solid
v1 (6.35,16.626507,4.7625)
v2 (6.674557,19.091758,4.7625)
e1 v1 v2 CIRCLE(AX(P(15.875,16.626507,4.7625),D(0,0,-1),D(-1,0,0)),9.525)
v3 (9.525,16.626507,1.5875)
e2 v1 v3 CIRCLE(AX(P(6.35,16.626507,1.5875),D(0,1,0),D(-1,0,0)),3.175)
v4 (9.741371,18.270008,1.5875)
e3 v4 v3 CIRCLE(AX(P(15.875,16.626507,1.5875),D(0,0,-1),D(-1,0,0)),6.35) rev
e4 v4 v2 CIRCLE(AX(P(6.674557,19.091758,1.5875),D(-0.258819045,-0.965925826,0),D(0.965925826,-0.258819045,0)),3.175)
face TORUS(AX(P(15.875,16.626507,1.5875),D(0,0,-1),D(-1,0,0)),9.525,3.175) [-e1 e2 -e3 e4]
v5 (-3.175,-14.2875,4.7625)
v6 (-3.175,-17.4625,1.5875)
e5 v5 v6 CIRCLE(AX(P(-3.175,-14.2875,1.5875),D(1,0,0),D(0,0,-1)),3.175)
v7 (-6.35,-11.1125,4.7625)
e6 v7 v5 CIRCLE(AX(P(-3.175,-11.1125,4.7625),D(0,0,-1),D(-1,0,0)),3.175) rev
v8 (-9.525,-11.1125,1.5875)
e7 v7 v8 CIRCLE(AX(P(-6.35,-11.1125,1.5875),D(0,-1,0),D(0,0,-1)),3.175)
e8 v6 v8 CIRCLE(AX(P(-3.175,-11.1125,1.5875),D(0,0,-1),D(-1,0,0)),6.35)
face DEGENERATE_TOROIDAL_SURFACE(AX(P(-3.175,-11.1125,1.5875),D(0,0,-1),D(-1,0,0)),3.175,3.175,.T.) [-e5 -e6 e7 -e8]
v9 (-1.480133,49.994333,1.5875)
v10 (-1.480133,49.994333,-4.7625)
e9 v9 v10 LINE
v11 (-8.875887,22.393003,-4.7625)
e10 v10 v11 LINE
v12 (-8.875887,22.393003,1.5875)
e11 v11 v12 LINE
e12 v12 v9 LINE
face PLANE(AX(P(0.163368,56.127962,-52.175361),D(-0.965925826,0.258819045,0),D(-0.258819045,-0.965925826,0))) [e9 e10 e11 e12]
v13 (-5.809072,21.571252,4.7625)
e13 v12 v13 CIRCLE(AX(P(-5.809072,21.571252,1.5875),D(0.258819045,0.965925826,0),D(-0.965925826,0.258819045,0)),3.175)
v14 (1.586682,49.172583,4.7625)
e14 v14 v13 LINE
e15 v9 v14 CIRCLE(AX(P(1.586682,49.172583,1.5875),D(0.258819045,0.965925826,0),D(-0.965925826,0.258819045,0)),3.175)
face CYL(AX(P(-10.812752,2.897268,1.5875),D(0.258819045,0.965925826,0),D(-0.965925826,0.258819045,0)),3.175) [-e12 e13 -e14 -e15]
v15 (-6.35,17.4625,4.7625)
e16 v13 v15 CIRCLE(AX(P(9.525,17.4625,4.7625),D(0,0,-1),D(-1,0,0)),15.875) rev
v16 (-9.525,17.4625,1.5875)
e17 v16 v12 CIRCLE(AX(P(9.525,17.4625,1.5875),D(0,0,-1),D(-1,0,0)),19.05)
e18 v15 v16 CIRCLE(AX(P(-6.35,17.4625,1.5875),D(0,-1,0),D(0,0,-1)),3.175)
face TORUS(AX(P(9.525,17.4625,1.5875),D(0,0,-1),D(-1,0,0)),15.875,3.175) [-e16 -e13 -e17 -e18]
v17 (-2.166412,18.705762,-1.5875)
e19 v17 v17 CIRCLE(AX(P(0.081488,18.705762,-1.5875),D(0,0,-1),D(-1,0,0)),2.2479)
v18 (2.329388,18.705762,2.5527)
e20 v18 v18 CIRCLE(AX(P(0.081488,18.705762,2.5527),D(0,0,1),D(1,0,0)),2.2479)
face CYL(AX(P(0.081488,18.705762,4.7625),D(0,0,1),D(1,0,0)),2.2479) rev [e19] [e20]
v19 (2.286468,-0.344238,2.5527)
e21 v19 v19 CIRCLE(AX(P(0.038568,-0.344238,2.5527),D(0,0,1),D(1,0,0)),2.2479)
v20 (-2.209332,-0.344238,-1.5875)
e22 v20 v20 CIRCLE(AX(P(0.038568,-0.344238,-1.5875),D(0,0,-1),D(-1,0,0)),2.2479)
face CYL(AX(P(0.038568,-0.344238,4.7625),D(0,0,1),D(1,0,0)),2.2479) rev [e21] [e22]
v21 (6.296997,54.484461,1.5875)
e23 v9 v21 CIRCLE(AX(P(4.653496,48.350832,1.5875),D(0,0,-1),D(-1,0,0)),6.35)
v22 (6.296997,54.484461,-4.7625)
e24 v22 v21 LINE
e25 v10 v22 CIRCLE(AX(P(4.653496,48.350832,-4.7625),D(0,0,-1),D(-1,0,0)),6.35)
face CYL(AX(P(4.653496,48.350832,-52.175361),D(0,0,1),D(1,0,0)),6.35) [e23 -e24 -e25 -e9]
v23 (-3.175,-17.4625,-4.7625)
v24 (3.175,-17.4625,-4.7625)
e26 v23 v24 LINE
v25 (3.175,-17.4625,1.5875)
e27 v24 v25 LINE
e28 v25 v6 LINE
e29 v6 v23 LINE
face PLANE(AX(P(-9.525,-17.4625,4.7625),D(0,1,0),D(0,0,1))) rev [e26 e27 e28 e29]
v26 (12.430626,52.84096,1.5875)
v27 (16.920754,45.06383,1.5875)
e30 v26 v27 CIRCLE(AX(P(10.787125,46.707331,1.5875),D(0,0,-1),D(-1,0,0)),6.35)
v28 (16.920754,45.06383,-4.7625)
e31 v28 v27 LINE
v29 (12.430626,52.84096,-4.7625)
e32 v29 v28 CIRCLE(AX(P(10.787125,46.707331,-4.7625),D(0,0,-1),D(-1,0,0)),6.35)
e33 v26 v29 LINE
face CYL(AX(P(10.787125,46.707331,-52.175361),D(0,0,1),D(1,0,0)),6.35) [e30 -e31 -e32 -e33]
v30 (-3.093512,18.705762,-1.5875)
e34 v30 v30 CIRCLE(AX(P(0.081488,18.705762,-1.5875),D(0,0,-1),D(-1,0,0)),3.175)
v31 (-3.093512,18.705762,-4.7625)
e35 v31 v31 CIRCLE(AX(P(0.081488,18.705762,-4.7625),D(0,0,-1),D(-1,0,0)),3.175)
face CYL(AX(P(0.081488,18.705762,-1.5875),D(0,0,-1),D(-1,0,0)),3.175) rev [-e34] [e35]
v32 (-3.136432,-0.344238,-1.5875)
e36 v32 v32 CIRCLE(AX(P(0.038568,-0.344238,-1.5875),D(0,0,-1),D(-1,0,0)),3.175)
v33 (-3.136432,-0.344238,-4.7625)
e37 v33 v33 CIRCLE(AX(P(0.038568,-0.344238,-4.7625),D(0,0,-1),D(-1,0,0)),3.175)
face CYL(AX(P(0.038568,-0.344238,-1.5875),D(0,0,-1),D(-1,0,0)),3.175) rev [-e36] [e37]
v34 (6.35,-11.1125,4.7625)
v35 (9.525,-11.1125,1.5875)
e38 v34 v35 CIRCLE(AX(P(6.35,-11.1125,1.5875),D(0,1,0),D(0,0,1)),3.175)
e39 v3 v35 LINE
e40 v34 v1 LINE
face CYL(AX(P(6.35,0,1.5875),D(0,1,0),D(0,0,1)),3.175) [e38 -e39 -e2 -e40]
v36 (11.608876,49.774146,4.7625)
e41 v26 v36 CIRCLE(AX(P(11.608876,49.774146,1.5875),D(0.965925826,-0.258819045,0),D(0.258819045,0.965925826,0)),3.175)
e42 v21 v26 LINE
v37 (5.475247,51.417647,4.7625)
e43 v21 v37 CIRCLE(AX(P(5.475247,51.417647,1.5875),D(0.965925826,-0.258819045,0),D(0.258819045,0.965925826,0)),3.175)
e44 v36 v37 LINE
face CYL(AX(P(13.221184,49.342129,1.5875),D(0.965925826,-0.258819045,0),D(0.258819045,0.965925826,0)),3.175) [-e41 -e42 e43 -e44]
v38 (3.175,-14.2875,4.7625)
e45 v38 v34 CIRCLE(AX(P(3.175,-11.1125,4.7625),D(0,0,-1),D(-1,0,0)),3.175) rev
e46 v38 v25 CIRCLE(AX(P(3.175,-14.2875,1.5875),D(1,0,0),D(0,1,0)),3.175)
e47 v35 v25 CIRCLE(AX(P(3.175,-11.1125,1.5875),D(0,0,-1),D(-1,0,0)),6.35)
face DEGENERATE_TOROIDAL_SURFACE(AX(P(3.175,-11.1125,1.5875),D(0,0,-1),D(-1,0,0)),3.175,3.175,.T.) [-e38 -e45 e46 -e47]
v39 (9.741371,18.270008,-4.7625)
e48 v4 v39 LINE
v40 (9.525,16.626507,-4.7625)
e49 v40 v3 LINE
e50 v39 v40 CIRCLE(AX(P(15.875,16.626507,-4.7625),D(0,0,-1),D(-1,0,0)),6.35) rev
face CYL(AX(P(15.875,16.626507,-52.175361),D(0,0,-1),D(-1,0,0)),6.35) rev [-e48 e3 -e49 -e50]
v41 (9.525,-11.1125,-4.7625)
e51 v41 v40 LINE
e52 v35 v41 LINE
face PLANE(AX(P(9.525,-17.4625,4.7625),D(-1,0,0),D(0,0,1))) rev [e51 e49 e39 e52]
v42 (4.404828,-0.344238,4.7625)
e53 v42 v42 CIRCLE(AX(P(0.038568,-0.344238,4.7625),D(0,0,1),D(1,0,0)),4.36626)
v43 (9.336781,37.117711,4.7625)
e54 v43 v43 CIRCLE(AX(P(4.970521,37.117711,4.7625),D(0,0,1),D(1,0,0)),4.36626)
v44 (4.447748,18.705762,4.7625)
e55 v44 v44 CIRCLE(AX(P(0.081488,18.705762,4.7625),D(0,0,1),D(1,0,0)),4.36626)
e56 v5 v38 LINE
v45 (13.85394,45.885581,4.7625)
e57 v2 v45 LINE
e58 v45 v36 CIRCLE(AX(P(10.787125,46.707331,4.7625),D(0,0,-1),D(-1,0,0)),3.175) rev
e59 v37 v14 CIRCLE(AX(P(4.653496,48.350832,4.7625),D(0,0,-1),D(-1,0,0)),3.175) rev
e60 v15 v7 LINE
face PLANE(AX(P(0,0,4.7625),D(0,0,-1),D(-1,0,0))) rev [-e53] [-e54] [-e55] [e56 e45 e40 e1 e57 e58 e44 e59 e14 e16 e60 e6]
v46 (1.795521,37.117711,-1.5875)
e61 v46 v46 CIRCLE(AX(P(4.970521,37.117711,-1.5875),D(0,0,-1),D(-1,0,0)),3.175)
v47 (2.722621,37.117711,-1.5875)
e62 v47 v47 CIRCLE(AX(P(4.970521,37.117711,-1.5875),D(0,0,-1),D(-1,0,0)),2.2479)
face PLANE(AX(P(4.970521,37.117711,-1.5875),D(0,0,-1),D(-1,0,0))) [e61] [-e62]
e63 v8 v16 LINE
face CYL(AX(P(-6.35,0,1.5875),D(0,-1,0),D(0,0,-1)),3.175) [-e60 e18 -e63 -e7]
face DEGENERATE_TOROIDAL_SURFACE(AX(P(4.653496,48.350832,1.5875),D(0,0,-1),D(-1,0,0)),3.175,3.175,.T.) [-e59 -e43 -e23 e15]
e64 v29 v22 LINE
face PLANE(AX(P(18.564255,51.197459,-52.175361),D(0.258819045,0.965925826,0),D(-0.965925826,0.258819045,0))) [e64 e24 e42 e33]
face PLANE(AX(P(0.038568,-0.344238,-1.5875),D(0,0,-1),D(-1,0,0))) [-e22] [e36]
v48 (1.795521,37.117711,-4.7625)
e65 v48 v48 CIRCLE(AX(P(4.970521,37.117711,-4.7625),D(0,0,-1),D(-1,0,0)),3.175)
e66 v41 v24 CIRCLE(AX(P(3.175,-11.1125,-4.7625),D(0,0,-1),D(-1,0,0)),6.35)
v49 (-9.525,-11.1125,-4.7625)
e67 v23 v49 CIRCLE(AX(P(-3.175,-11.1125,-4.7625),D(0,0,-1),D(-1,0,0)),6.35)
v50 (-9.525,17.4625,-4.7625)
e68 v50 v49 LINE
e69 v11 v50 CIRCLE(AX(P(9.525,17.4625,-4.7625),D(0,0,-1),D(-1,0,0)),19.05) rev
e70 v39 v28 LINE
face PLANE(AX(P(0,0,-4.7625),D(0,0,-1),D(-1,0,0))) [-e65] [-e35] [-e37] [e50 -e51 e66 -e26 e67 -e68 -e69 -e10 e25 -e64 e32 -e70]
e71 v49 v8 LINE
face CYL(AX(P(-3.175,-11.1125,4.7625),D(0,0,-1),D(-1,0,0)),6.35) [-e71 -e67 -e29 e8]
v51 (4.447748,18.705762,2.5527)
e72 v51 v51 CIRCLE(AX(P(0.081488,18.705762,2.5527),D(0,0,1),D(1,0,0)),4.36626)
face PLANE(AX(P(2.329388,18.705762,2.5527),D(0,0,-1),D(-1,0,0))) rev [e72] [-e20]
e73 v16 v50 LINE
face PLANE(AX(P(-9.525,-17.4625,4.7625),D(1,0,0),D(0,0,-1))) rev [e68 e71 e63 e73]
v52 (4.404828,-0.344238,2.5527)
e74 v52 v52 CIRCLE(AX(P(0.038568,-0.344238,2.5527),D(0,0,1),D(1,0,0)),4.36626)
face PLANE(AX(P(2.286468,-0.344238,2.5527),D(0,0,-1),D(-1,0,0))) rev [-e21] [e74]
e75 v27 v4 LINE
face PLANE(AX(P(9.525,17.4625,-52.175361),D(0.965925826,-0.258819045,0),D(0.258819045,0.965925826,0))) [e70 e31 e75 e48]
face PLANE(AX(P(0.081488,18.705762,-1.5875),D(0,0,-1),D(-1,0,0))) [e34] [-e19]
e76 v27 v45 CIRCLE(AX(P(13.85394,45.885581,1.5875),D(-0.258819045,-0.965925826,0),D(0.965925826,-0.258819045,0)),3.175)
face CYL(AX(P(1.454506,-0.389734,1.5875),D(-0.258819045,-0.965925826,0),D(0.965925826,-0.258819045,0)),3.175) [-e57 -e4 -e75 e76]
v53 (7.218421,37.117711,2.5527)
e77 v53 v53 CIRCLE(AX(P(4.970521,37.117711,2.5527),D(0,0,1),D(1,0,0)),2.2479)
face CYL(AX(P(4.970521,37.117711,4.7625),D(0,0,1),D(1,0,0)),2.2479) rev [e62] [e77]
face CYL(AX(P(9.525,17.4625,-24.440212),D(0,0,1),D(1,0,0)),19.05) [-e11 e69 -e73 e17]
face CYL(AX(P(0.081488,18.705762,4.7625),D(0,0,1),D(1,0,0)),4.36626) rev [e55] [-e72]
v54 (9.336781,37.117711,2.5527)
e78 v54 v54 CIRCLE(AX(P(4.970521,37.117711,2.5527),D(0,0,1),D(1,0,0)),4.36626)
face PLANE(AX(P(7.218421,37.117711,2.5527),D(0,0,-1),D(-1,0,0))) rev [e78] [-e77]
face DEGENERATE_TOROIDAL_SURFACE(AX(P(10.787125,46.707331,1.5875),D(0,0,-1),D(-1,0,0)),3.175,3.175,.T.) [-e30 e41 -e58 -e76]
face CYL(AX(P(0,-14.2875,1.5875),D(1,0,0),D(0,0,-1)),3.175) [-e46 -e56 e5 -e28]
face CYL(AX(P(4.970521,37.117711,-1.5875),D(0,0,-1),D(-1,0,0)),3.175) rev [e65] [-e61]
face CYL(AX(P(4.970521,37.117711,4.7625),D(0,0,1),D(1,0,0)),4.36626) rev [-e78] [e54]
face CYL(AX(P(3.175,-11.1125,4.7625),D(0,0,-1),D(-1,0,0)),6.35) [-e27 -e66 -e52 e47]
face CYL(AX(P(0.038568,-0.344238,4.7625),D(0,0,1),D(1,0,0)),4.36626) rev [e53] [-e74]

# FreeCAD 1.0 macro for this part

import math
import FreeCAD as App
import Part
import Sketcher

V = App.Vector
Q = App.Units.Quantity


def edges_at(feature, points):
    """Names of the edges that pass closest to the given points."""
    edges = feature.Shape.Edges
    near = lambda p: min(range(len(edges)), key=lambda i: edges[i].distToShape(Part.Vertex(*p))[0])
    return sorted({f"Edge{near(p) + 1}" for p in points})

doc = App.newDocument("Part")
body = doc.addObject("PartDesign::Body", "Body")

sketch1 = doc.addObject("Sketcher::SketchObject", "Sketch")
body.addObject(sketch1)
sketch1.AttachmentSupport = (doc.XY_Plane, [""])
sketch1.MapMode = "FlatFace"
sketch1.addGeometry(Part.LineSegment(V(-10, 17, 0), V(-10, -17, 0)), False)
sketch1.addGeometry(Part.LineSegment(V(-10, -17, 0), V(10, -17, 0)), False)
sketch1.addGeometry(Part.LineSegment(V(10, -17, 0), V(10, 17, 0)), False)
sketch1.addGeometry(Part.LineSegment(V(10, 17, 0), V(-10, 17, 0)), False)
sketch1.addConstraint(Sketcher.Constraint("Coincident", 0, 2, 1, 1))
sketch1.addConstraint(Sketcher.Constraint("Coincident", 1, 2, 2, 1))
sketch1.addConstraint(Sketcher.Constraint("Coincident", 2, 2, 3, 1))
sketch1.addConstraint(Sketcher.Constraint("Coincident", 3, 2, 0, 1))
sketch1.addConstraint(Sketcher.Constraint("Vertical", 0))
sketch1.addConstraint(Sketcher.Constraint("Horizontal", 1))
sketch1.addConstraint(Sketcher.Constraint("Vertical", 2))
sketch1.addConstraint(Sketcher.Constraint("Horizontal", 3))
sketch1.addConstraint(Sketcher.Constraint("Symmetric", 0, 2, 2, 2, -1, 1))
sketch1.addConstraint(Sketcher.Constraint("DistanceX", 1, 1, 1, 2, Q("0.75 in")))
sketch1.addConstraint(Sketcher.Constraint("DistanceY", 0, 2, 0, 1, Q("1.375 in")))
pad1 = doc.addObject("PartDesign::Pad", "Pad")
body.addObject(pad1)
pad1.Profile = sketch1
pad1.Length = Q("0.375 in")
pad1.Midplane = True
body2 = doc.addObject("PartDesign::Body", "Body001")

sketch2 = doc.addObject("Sketcher::SketchObject", "Sketch001")
body2.addObject(sketch2)
sketch2.AttachmentSupport = (doc.getObject("XY_Plane001"), [""])
sketch2.MapMode = "FlatFace"
sketch2.AttachmentOffset = App.Placement(V(0, 0, 0.1875 * 25.4), App.Rotation())
sketch2.addGeometry(Part.LineSegment(V(10, 17, 0), V(19, 51, 0)), False)
sketch2.addGeometry(Part.LineSegment(V(19, 51, 0), V(0, 56, 0)), False)
sketch2.addGeometry(Part.LineSegment(V(0, 56, 0), V(-9, 22, 0)), False)
sketch2.addGeometry(Part.LineSegment(V(-9, 22, 0), V(10, 17, 0)), False)
sketch2.addConstraint(Sketcher.Constraint("Coincident", 0, 2, 1, 1))
sketch2.addConstraint(Sketcher.Constraint("Coincident", 1, 2, 2, 1))
sketch2.addConstraint(Sketcher.Constraint("Coincident", 2, 2, 3, 1))
sketch2.addConstraint(Sketcher.Constraint("Coincident", 3, 2, 0, 1))
sketch2.addConstraint(Sketcher.Constraint("Perpendicular", 0, 1))
sketch2.addConstraint(Sketcher.Constraint("Perpendicular", 1, 2))
sketch2.addConstraint(Sketcher.Constraint("Perpendicular", 2, 3))
sketch2.addConstraint(Sketcher.Constraint("Angle", 0, Q("75 deg")))
sketch2.addConstraint(Sketcher.Constraint("Distance", 1, Q("0.75 in")))
sketch2.addConstraint(Sketcher.Constraint("Distance", 0, Q("1.375 in")))
sketch2.addConstraint(Sketcher.Constraint("DistanceX", -1, 1, 3, 2, Q("0.375 in")))
sketch2.addConstraint(Sketcher.Constraint("DistanceY", -1, 1, 3, 2, Q("0.6875 in")))
pad2 = doc.addObject("PartDesign::Pad", "Pad001")
body2.addObject(pad2)
pad2.Profile = sketch2
pad2.Length = Q("0.375 in")
pad2.Reversed = True
body.AllowCompound = True
doc.recompute()

boolean = doc.addObject("PartDesign::Boolean", "Boolean")
body.addObject(boolean)
boolean.Type = "Fuse"
boolean.addObjects([body2])

sketch3 = doc.addObject("Sketcher::SketchObject", "Sketch002")
body.addObject(sketch3)
sketch3.AttachmentSupport = (doc.XY_Plane, [""])
sketch3.MapMode = "FlatFace"
sketch3.AttachmentOffset = App.Placement(V(0, 0, 0.1875 * 25.4), App.Rotation())
sketch3.addGeometry(Part.LineSegment(V(9.5, 17.5, 0), V(-8.9, 22.4, 0)), False)
sketch3.addGeometry(Part.ArcOfCircle(Part.Circle(V(9.5, 17.5, 0), V(0, 0, 1), 19.1), math.radians(165), math.radians(180)), False)
sketch3.addGeometry(Part.LineSegment(V(-9.5, 17.5, 0), V(9.5, 17.5, 0)), False)
sketch3.addConstraint(Sketcher.Constraint("Coincident", 0, 2, 1, 1))
sketch3.addConstraint(Sketcher.Constraint("Coincident", 1, 2, 2, 1))
sketch3.addConstraint(Sketcher.Constraint("Coincident", 2, 2, 0, 1))
sketch3.addConstraint(Sketcher.Constraint("Horizontal", 2))
sketch3.addConstraint(Sketcher.Constraint("Coincident", 2, 2, 1, 3))
sketch3.addConstraint(Sketcher.Constraint("Radius", 1, Q("0.75 in")))
sketch3.addConstraint(Sketcher.Constraint("Angle", 0, Q("165 deg")))
sketch3.addConstraint(Sketcher.Constraint("DistanceX", -1, 1, 1, 3, Q("0.375 in")))
sketch3.addConstraint(Sketcher.Constraint("DistanceY", -1, 1, 1, 3, Q("0.6875 in")))
pad3 = doc.addObject("PartDesign::Pad", "Pad002")
body.addObject(pad3)
pad3.Profile = sketch3
pad3.Length = Q("0.375 in")
pad3.Reversed = True

sketch4 = doc.addObject("Sketcher::SketchObject", "Sketch003")
body.addObject(sketch4)
sketch4.AttachmentSupport = (doc.XY_Plane, [""])
sketch4.MapMode = "FlatFace"
sketch4.AttachmentOffset = App.Placement(V(0, 0, 0.1875 * 25.4), App.Rotation())
sketch4.addGeometry(Part.Circle(V(0, -0.3, 0), V(0, 0, 1), 2.2), False)
sketch4.addGeometry(Part.Circle(V(0.1, 18.7, 0), V(0, 0, 1), 2.2), False)
sketch4.addGeometry(Part.Circle(V(5, 37.1, 0), V(0, 0, 1), 2.2), False)
sketch4.addConstraint(Sketcher.Constraint("Equal", 0, 1))
sketch4.addConstraint(Sketcher.Constraint("Equal", 1, 2))
sketch4.addConstraint(Sketcher.Constraint("Diameter", 0, Q("0.177 in")))
sketch4.addConstraint(Sketcher.Constraint("DistanceY", 0, 3, 1, 3, Q("0.75 in")))
sketch4.addConstraint(Sketcher.Constraint("DistanceY", 0, 3, -1, 1, 0.344238))
sketch4.addConstraint(Sketcher.Constraint("DistanceX", -1, 1, 2, 3, 4.970521))
sketch4.addConstraint(Sketcher.Constraint("DistanceY", -1, 1, 2, 3, 37.117711))
sketch4.addConstraint(Sketcher.Constraint("DistanceX", 0, 3, 1, 3, 0.04292))
sketch4.addConstraint(Sketcher.Constraint("DistanceX", -1, 1, 0, 3, 0.038568))
doc.recompute()
hole = doc.addObject("PartDesign::Hole", "Hole")
body.addObject(hole)
hole.Profile = sketch4
hole.ThreadType = "None"
hole.Diameter = Q("0.177 in")
hole.DepthType = "ThroughAll"
hole.HoleCutType = "Counterbore"
hole.HoleCutDiameter = Q("0.3438 in")
hole.HoleCutDepth = Q("0.087 in")
doc.recompute()

fillet = doc.addObject("PartDesign::Fillet", "Fillet")
body.addObject(fillet)
fillet.Base = (hole, edges_at(hole, [
    (18.564, 51.197, 0),
    (0.163, 56.128, 0),
    (9.525, -17.462, 0),
    (-9.525, -17.462, 0),
    (9.525, 17.462, 0),
]))
fillet.Radius = Q("0.25 in")

sketch5 = doc.addObject("Sketcher::SketchObject", "Sketch004")
body.addObject(sketch5)
sketch5.AttachmentSupport = (doc.XY_Plane, [""])
sketch5.MapMode = "FlatFace"
sketch5.AttachmentOffset = App.Placement(V(0, 0, -0.1875 * 25.4), App.Rotation())
sketch5.addGeometry(Part.Circle(V(5, 37.1, 0), V(0, 0, 1), 3.2), False)
sketch5.addGeometry(Part.Circle(V(5, 37.1, 0), V(0, 0, 1), 2.2), False)
sketch5.addGeometry(Part.Circle(V(0.1, 18.7, 0), V(0, 0, 1), 3.2), False)
sketch5.addGeometry(Part.Circle(V(0.1, 18.7, 0), V(0, 0, 1), 2.2), False)
sketch5.addGeometry(Part.Circle(V(0, -0.3, 0), V(0, 0, 1), 3.2), False)
sketch5.addGeometry(Part.Circle(V(0, -0.3, 0), V(0, 0, 1), 2.2), False)
sketch5.addConstraint(Sketcher.Constraint("Coincident", 1, 3, 0, 3))
sketch5.addConstraint(Sketcher.Constraint("Coincident", 3, 3, 2, 3))
sketch5.addConstraint(Sketcher.Constraint("Coincident", 5, 3, 4, 3))
sketch5.addConstraint(Sketcher.Constraint("Equal", 0, 2))
sketch5.addConstraint(Sketcher.Constraint("Equal", 1, 3))
sketch5.addConstraint(Sketcher.Constraint("Equal", 2, 4))
sketch5.addConstraint(Sketcher.Constraint("Equal", 3, 5))
sketch5.addConstraint(Sketcher.Constraint("Diameter", 0, Q("0.25 in")))
sketch5.addConstraint(Sketcher.Constraint("Diameter", 1, Q("0.177 in")))
sketch5.addConstraint(Sketcher.Constraint("DistanceY", 4, 3, 2, 3, Q("0.75 in")))
sketch5.addConstraint(Sketcher.Constraint("DistanceX", -1, 1, 0, 3, 4.970521))
sketch5.addConstraint(Sketcher.Constraint("DistanceY", -1, 1, 0, 3, 37.117711))
sketch5.addConstraint(Sketcher.Constraint("DistanceY", -1, 1, 2, 3, 18.705762))
sketch5.addConstraint(Sketcher.Constraint("DistanceX", 4, 3, 2, 3, 0.04292))
sketch5.addConstraint(Sketcher.Constraint("DistanceX", -1, 1, 2, 3, 0.081488))
pocket1 = doc.addObject("PartDesign::Pocket", "Pocket")
body.addObject(pocket1)
pocket1.Profile = sketch5
pocket1.Length = Q("0.125 in")
pocket1.Reversed = True
doc.recompute()

fillet2 = doc.addObject("PartDesign::Fillet", "Fillet001")
body.addObject(fillet2)
fillet2.Base = (pocket1, edges_at(pocket1, [
    (-9.525, 3.175, 4.763),
    (-9.362, 19.949, 4.763),
    (13.331, 31.667, 4.763),
    (9.525, 2.757, 4.763),
    (9.364, 53.663, 4.763),
    (-5.178, 36.194, 4.763),
    (0, -17.462, 4.763),
    (16.286, 49.882, 4.763),
    (7.665, -15.603, 4.763),
    (-7.665, -15.603, 4.763),
    (1.478, 53.85, 4.763),
    (9.579, 17.455, 4.763),
]))
fillet2.Radius = Q("0.125 in")

doc.recompute()
